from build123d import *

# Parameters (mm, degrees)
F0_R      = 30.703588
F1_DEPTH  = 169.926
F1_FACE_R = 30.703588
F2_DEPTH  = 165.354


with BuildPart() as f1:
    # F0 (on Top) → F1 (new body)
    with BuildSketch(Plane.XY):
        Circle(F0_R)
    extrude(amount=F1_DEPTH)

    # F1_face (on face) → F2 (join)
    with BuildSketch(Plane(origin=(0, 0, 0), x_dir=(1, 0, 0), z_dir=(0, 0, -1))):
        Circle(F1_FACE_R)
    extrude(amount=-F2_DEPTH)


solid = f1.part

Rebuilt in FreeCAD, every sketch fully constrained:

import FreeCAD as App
import Part
import Sketcher
from FreeCAD import Vector

doc = App.newDocument("Part")
params = doc.addObject("Spreadsheet::Sheet", "Params")
for row, (alias, value) in enumerate([
    ("pad1_length", "6.69 in"),
    ("pad2_length", "6.51 in"),
], start=1):
    params.set(f"A{row}", alias)
    params.set(f"B{row}", "=" + value)
    params.setAlias(f"B{row}", alias)

body = doc.addObject("PartDesign::Body", "Body")

sketch1 = body.newObject("Sketcher::SketchObject", "Sketch")
sketch1.AttachmentSupport = (doc.getObject("XY_Plane"), [""])
sketch1.MapMode = "FlatFace"
sketch1.addGeometry(Part.Circle(Vector(0, 0, 0), Vector(0, 0, 1), 31), False)
sketch1.addConstraint(Sketcher.Constraint("Coincident", 0, 3, -1, 1))
sketch1.addConstraint(Sketcher.Constraint("Diameter", 0, 61.407176))
pad1 = body.newObject("PartDesign::Pad", "Pad")
pad1.Profile = sketch1
pad1.setExpression("Length", "Params.pad1_length")

sketch2 = body.newObject("Sketcher::SketchObject", "Sketch001")
sketch2.AttachmentSupport = (doc.getObject("XY_Plane"), [""])
sketch2.MapMode = "FlatFace"
sketch2.addGeometry(Part.Circle(Vector(0, 0, 0), Vector(0, 0, 1), 31), False)
sketch2.addConstraint(Sketcher.Constraint("Coincident", 0, 3, -1, 1))
sketch2.addConstraint(Sketcher.Constraint("Diameter", 0, 61.407176))
pad2 = body.newObject("PartDesign::Pad", "Pad001")
pad2.Profile = sketch2
pad2.setExpression("Length", "Params.pad2_length")

doc.recompute()
